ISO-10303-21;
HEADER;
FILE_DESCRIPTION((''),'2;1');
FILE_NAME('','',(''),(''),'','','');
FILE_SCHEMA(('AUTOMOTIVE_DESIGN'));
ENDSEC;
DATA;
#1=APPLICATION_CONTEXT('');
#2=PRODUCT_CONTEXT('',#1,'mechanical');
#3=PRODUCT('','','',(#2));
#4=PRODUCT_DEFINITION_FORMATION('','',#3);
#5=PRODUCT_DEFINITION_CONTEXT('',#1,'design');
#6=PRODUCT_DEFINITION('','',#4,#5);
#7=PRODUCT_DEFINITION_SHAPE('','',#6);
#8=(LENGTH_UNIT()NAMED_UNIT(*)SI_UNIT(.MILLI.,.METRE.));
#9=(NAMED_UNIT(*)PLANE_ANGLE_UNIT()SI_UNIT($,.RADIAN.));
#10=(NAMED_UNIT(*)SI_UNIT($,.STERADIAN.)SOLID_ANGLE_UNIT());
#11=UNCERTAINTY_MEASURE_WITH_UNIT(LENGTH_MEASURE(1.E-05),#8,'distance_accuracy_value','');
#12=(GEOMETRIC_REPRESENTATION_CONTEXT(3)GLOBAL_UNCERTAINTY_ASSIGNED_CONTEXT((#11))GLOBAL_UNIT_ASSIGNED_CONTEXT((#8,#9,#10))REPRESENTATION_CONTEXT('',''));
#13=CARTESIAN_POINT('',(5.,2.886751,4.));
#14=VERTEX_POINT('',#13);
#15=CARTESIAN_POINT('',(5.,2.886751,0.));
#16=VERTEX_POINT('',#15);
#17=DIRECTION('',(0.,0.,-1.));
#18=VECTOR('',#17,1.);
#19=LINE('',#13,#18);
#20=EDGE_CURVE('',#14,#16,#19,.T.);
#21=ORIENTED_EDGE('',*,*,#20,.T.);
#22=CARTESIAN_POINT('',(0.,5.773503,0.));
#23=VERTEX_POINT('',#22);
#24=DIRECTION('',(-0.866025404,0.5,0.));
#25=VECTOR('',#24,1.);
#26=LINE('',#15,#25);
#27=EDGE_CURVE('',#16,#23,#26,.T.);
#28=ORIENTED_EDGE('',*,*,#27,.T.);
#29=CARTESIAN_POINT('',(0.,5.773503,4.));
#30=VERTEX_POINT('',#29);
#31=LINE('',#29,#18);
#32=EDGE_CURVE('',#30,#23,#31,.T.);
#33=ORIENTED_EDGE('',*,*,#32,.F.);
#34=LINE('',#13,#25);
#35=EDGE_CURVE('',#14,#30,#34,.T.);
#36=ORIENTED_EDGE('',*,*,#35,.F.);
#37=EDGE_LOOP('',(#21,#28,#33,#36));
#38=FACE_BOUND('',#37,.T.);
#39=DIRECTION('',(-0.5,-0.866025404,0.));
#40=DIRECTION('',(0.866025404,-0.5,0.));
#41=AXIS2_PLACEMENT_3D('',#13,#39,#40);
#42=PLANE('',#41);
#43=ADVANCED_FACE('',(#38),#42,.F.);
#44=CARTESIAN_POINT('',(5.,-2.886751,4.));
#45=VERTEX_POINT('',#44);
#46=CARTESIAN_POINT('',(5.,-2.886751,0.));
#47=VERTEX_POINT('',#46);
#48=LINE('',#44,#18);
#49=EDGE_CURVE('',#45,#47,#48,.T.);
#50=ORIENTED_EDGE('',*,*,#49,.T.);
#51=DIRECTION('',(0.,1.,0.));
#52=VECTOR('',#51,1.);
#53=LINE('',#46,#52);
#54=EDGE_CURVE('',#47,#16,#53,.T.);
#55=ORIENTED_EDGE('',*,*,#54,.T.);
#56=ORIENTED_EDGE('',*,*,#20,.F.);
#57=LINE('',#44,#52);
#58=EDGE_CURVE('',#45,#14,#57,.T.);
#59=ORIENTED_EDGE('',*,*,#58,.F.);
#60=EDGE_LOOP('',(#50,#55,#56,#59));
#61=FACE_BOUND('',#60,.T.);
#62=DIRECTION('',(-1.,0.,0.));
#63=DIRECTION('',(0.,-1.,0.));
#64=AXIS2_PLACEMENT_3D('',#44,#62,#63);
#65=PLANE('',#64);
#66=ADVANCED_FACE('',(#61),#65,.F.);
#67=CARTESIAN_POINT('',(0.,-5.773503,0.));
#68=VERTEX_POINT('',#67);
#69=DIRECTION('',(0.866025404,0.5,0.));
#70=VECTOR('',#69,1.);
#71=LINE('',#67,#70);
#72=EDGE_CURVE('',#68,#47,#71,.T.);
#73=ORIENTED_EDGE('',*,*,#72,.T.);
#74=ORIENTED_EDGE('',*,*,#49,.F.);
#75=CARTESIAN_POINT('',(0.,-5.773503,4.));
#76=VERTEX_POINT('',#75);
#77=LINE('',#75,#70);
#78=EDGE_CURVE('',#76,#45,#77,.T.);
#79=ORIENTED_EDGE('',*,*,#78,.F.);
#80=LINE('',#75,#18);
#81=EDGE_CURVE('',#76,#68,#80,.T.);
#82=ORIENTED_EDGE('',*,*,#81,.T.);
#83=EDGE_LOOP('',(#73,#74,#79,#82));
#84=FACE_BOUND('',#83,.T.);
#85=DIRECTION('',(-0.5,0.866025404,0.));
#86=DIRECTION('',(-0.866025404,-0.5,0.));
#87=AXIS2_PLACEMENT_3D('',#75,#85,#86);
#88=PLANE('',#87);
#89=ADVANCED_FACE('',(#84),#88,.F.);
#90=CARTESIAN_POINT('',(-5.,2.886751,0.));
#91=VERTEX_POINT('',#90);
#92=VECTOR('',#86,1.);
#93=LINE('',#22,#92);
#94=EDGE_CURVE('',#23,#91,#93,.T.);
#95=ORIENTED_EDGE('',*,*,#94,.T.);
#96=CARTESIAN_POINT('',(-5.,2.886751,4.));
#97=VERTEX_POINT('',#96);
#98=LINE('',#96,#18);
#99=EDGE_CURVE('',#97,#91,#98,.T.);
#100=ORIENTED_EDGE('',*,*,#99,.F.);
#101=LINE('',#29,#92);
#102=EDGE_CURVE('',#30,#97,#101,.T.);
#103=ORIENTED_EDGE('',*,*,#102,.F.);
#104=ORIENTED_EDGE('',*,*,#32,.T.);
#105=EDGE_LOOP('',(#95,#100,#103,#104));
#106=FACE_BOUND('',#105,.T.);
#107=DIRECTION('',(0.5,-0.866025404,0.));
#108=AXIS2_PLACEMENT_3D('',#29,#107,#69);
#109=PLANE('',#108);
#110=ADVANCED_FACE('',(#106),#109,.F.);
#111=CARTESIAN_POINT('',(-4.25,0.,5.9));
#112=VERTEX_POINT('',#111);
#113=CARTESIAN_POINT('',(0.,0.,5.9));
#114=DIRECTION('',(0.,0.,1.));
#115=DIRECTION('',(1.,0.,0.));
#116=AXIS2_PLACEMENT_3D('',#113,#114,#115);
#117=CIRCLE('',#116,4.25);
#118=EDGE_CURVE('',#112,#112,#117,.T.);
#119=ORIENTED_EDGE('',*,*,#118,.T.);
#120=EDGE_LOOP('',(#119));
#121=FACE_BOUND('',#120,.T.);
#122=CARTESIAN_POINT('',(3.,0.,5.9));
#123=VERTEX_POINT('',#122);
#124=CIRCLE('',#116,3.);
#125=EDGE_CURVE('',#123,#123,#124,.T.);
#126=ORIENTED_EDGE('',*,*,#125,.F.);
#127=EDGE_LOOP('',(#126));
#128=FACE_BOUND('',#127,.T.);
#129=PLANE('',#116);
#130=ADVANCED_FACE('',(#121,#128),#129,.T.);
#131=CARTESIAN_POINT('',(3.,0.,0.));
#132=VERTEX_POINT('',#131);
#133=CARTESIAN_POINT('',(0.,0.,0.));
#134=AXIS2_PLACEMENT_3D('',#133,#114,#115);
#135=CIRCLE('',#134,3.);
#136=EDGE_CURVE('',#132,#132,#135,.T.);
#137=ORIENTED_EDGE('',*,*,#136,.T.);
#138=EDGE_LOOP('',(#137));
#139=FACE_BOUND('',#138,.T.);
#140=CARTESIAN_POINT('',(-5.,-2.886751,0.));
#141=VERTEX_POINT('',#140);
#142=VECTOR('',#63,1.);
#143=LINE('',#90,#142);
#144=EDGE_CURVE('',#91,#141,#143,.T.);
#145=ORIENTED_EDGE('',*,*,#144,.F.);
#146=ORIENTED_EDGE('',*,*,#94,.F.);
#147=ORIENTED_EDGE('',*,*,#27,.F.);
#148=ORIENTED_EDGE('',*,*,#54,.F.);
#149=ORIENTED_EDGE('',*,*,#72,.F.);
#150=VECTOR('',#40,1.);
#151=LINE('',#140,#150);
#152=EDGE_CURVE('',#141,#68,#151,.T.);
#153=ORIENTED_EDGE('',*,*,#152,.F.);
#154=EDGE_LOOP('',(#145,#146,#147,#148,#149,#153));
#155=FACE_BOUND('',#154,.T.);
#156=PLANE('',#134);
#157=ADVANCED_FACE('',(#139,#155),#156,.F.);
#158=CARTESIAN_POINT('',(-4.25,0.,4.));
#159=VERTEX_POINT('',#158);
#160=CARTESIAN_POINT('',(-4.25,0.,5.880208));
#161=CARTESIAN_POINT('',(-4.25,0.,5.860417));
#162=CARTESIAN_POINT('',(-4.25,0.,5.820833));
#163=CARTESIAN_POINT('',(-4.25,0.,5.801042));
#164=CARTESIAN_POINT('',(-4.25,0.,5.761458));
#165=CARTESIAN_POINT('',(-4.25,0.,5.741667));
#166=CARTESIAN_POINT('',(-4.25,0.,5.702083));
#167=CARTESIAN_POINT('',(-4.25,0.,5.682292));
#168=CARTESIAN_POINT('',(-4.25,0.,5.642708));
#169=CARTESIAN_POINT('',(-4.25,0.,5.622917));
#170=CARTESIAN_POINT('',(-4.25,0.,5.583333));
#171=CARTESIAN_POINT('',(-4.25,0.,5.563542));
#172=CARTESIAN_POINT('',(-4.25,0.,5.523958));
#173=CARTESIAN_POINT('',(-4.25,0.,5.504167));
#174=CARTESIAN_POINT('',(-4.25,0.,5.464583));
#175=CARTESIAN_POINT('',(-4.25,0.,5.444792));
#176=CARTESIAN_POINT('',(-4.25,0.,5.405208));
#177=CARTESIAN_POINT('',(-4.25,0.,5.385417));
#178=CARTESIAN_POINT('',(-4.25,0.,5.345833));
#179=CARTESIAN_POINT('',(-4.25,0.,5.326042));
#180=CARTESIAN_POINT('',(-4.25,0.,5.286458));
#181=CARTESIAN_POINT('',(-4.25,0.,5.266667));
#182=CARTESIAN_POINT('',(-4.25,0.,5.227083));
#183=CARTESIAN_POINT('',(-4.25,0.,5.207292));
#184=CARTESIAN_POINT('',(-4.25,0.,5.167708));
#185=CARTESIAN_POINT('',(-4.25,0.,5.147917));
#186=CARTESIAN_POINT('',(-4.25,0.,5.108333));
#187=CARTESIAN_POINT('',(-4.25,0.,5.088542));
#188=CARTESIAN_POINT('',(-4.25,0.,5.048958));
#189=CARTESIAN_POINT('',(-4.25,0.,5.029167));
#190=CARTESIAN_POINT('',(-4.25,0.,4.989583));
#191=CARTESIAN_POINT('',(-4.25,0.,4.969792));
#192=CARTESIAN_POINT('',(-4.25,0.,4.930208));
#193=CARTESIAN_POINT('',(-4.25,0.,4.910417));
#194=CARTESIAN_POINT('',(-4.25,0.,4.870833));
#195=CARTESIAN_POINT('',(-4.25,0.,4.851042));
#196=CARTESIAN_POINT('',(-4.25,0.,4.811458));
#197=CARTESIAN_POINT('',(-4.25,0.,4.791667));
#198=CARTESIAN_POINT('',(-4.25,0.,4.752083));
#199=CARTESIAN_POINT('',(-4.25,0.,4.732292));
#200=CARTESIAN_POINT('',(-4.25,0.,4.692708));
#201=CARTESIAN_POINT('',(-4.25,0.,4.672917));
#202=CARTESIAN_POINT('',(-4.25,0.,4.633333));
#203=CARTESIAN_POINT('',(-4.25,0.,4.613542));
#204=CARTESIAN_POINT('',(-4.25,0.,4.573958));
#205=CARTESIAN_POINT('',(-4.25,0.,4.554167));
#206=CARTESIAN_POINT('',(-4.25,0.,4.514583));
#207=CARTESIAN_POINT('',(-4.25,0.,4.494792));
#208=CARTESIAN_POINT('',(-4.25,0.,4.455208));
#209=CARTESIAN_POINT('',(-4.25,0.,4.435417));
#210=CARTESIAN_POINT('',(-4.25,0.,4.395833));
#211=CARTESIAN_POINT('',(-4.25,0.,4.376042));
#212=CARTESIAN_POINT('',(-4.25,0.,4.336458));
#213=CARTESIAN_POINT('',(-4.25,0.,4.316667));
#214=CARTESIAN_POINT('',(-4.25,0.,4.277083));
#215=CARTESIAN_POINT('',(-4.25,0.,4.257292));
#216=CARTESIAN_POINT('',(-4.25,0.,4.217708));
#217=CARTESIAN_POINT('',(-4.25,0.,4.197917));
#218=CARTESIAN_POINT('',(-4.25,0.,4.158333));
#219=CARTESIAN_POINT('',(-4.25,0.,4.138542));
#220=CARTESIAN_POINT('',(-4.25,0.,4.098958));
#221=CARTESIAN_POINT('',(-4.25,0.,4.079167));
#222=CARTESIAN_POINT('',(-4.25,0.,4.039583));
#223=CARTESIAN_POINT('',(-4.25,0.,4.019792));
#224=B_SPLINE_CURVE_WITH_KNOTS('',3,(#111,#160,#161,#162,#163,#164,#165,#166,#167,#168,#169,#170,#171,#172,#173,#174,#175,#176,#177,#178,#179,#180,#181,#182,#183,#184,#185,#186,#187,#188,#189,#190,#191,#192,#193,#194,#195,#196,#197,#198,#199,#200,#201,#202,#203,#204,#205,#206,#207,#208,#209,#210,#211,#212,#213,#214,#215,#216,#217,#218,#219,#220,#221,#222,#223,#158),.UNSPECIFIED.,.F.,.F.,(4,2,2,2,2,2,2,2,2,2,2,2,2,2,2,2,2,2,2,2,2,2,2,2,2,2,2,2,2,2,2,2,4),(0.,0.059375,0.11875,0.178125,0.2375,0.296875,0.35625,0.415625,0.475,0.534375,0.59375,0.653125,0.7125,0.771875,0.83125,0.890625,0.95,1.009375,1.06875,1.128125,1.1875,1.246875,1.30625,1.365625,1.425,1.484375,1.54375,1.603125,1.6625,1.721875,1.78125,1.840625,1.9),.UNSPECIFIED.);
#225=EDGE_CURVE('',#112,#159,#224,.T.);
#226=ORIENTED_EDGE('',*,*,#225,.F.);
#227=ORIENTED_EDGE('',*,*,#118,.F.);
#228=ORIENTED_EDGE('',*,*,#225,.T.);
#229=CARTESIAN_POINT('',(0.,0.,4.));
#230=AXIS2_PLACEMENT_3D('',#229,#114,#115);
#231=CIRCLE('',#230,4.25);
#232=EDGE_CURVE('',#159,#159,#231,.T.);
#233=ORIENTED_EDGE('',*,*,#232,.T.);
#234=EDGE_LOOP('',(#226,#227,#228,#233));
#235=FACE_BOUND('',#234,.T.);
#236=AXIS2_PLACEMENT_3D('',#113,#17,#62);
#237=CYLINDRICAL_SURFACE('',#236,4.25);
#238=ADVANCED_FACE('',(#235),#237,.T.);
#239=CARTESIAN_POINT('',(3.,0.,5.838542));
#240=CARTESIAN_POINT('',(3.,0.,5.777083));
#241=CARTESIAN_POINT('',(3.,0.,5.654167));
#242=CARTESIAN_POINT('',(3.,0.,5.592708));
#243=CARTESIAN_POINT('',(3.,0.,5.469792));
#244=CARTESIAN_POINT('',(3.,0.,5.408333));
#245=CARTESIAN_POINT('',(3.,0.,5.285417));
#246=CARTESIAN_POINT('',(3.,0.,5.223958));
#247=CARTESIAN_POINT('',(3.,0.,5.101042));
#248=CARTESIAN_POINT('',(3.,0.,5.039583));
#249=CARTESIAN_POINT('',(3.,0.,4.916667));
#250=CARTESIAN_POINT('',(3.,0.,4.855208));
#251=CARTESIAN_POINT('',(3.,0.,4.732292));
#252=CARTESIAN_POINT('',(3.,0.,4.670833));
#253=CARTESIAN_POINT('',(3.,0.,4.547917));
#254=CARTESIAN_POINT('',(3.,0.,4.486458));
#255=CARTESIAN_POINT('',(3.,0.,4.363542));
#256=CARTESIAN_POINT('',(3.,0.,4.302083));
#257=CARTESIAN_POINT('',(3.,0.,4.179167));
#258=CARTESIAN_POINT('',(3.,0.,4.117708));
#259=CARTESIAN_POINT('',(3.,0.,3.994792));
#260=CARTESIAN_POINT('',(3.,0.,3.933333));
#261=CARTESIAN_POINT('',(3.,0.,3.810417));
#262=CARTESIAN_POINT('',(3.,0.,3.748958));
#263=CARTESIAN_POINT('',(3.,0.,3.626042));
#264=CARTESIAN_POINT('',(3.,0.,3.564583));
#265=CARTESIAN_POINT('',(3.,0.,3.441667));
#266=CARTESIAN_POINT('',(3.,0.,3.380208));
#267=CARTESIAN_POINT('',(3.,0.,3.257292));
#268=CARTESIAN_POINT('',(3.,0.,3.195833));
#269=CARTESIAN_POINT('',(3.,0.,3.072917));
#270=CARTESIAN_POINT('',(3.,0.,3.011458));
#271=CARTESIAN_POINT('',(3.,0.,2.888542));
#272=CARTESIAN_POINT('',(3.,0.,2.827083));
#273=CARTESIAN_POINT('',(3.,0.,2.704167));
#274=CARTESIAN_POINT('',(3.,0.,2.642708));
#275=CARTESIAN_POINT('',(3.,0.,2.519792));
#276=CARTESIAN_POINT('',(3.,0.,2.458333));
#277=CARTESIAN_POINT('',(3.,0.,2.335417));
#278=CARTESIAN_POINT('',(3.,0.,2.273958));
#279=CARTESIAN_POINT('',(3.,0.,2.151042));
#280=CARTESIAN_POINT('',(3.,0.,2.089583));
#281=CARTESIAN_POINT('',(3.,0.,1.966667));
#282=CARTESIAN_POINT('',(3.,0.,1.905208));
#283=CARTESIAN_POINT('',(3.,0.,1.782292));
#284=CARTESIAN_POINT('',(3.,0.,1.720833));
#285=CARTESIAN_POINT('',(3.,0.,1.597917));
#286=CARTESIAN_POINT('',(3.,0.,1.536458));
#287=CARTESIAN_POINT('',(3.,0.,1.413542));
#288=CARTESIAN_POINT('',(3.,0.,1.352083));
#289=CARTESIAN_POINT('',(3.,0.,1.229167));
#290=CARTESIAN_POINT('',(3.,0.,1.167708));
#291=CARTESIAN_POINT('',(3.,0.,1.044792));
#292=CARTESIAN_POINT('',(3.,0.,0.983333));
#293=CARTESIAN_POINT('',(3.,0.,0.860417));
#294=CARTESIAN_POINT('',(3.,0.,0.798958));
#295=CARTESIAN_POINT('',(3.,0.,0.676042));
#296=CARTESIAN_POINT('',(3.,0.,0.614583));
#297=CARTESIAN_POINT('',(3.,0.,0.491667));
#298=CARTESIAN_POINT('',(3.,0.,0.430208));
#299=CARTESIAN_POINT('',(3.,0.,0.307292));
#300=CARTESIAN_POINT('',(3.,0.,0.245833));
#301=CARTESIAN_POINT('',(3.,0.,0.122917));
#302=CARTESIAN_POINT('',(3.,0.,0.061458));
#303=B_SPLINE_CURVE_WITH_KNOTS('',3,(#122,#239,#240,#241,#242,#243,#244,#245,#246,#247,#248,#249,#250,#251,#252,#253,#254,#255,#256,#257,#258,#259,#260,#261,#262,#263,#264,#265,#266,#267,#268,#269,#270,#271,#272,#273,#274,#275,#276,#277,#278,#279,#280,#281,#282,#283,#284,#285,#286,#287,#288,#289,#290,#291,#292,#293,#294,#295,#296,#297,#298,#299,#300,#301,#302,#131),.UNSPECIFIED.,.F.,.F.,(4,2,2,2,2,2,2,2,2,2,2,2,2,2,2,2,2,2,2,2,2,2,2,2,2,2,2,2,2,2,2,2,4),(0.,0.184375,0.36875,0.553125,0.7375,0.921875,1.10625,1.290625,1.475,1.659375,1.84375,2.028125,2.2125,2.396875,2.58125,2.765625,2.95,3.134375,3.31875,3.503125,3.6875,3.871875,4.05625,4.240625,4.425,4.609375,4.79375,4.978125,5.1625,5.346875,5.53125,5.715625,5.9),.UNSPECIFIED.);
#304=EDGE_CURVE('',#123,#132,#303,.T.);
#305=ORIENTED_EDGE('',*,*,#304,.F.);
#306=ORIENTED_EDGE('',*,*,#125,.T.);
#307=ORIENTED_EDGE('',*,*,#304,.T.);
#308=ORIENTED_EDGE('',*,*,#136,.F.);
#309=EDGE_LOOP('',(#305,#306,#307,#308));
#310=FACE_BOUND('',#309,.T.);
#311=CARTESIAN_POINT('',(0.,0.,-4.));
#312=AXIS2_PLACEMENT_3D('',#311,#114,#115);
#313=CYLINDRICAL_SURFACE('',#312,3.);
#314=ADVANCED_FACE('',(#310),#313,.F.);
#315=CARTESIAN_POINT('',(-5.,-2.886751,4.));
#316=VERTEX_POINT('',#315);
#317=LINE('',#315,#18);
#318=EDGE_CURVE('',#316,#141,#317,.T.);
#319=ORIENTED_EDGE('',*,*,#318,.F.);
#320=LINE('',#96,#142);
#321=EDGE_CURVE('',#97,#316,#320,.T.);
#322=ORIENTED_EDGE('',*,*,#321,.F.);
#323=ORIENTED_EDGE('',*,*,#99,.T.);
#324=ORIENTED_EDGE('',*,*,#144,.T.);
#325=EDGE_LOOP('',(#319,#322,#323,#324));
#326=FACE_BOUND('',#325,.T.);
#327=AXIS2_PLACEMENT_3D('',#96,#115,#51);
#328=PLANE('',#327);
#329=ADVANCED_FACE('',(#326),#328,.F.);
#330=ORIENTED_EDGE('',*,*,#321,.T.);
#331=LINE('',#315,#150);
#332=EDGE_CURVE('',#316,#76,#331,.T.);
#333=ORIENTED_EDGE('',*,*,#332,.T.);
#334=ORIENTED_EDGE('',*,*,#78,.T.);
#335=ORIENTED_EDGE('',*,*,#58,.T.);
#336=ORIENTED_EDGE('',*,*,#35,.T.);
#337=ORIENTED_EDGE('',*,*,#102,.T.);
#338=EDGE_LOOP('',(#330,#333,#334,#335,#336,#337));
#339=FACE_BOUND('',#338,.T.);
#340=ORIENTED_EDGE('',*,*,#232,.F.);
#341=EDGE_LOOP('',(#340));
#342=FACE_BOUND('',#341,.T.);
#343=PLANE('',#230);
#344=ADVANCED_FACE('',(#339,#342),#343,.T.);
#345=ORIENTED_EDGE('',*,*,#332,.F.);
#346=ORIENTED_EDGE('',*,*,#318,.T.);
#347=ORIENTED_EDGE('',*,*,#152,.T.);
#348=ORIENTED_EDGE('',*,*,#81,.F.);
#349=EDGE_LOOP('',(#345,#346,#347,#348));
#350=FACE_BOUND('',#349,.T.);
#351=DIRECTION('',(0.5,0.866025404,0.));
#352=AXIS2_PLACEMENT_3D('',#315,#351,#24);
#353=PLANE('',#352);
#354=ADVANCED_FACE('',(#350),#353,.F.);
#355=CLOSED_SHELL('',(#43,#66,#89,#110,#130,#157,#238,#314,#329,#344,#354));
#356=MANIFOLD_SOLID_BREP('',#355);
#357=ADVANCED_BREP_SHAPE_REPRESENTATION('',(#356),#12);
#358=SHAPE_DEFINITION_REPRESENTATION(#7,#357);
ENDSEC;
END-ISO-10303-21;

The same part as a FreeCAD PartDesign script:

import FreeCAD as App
import Part
import Sketcher
Q = App.Units.Quantity


def add_polygon(sketch, points):
    """Adds a closed chain of lines whose ends are joined by coincident constraints."""
    first, n = sketch.GeometryCount, len(points)
    for a, b in zip(points, points[1:] + points[:1]):
        sketch.addGeometry(Part.LineSegment(App.Vector(*a, 0), App.Vector(*b, 0)), False)
    for i in range(n):
        sketch.addConstraint(Sketcher.Constraint("Coincident", first + i, 2, first + (i + 1) % n, 1))

doc = App.newDocument("Part")
body = doc.addObject("PartDesign::Body", "Body")

# Sketch on XY plane
sketch1 = body.newObject("Sketcher::SketchObject", "Sketch")
sketch1.AttachmentSupport = (doc.getObject("XY_Plane"), [""])
sketch1.MapMode = "FlatFace"
add_polygon(sketch1, [(0, 5.773503), (-5, 2.886751), (-5, -2.886751), (0, -5.773503), (5, -2.886751), (5, 2.886751)])  # lines 0-5
sketch1.addConstraint([
    Sketcher.Constraint("Vertical", 1),
    Sketcher.Constraint("Vertical", 4),
    Sketcher.Constraint("Symmetric", 0, 2, 3, 2, -1, 1),
    Sketcher.Constraint("Symmetric", 2, 2, 5, 2, -1, 1),
    Sketcher.Constraint("PointOnObject", 2, 2, -2),
    Sketcher.Constraint("Parallel", 2, 5),
    Sketcher.Constraint("Horizontal", 1, 2, 3, 2),
    Sketcher.Constraint("Angle", 0, Q("-150 deg")),
    Sketcher.Constraint("DistanceX", 0, 2, -1, 1, Q("5 mm")),
    Sketcher.Constraint("DistanceY", 1, 2, 1, 1, Q("5.773503 mm")),
])
pad1 = body.newObject("PartDesign::Pad", "Pad")
pad1.Profile = sketch1
pad1.Length = 4

# Sketch on XY plane
sketch2 = body.newObject("Sketcher::SketchObject", "Sketch001")
sketch2.AttachmentSupport = (doc.getObject("XY_Plane"), [""])
sketch2.MapMode = "FlatFace"
sketch2.AttachmentOffset = App.Placement(App.Vector(0, 0, 4), App.Rotation())
sketch2.addGeometry(Part.Circle(App.Vector(0, 0, 0), App.Vector(0, 0, 1), 4.25), False)
sketch2.addConstraint([
    Sketcher.Constraint("Coincident", 0, 3, -1, 1),
    Sketcher.Constraint("Diameter", 0, Q("8.5 mm")),
])
pad2 = body.newObject("PartDesign::Pad", "Pad001")
pad2.Profile = sketch2
pad2.Length = 1.9

# Sketch on XY plane
sketch3 = body.newObject("Sketcher::SketchObject", "Sketch002")
sketch3.AttachmentSupport = (doc.getObject("XY_Plane"), [""])
sketch3.MapMode = "FlatFace"
sketch3.AttachmentOffset = App.Placement(App.Vector(0, 0, 5.9), App.Rotation())
sketch3.addGeometry(Part.Circle(App.Vector(0, 0, 0), App.Vector(0, 0, 1), 3), False)
sketch3.addConstraint([
    Sketcher.Constraint("Coincident", 0, 3, -1, 1),
    Sketcher.Constraint("Diameter", 0, Q("6 mm")),
])
pocket1 = body.newObject("PartDesign::Pocket", "Pocket")
pocket1.Profile = sketch3
pocket1.Length = 9.9

doc.recompute()
